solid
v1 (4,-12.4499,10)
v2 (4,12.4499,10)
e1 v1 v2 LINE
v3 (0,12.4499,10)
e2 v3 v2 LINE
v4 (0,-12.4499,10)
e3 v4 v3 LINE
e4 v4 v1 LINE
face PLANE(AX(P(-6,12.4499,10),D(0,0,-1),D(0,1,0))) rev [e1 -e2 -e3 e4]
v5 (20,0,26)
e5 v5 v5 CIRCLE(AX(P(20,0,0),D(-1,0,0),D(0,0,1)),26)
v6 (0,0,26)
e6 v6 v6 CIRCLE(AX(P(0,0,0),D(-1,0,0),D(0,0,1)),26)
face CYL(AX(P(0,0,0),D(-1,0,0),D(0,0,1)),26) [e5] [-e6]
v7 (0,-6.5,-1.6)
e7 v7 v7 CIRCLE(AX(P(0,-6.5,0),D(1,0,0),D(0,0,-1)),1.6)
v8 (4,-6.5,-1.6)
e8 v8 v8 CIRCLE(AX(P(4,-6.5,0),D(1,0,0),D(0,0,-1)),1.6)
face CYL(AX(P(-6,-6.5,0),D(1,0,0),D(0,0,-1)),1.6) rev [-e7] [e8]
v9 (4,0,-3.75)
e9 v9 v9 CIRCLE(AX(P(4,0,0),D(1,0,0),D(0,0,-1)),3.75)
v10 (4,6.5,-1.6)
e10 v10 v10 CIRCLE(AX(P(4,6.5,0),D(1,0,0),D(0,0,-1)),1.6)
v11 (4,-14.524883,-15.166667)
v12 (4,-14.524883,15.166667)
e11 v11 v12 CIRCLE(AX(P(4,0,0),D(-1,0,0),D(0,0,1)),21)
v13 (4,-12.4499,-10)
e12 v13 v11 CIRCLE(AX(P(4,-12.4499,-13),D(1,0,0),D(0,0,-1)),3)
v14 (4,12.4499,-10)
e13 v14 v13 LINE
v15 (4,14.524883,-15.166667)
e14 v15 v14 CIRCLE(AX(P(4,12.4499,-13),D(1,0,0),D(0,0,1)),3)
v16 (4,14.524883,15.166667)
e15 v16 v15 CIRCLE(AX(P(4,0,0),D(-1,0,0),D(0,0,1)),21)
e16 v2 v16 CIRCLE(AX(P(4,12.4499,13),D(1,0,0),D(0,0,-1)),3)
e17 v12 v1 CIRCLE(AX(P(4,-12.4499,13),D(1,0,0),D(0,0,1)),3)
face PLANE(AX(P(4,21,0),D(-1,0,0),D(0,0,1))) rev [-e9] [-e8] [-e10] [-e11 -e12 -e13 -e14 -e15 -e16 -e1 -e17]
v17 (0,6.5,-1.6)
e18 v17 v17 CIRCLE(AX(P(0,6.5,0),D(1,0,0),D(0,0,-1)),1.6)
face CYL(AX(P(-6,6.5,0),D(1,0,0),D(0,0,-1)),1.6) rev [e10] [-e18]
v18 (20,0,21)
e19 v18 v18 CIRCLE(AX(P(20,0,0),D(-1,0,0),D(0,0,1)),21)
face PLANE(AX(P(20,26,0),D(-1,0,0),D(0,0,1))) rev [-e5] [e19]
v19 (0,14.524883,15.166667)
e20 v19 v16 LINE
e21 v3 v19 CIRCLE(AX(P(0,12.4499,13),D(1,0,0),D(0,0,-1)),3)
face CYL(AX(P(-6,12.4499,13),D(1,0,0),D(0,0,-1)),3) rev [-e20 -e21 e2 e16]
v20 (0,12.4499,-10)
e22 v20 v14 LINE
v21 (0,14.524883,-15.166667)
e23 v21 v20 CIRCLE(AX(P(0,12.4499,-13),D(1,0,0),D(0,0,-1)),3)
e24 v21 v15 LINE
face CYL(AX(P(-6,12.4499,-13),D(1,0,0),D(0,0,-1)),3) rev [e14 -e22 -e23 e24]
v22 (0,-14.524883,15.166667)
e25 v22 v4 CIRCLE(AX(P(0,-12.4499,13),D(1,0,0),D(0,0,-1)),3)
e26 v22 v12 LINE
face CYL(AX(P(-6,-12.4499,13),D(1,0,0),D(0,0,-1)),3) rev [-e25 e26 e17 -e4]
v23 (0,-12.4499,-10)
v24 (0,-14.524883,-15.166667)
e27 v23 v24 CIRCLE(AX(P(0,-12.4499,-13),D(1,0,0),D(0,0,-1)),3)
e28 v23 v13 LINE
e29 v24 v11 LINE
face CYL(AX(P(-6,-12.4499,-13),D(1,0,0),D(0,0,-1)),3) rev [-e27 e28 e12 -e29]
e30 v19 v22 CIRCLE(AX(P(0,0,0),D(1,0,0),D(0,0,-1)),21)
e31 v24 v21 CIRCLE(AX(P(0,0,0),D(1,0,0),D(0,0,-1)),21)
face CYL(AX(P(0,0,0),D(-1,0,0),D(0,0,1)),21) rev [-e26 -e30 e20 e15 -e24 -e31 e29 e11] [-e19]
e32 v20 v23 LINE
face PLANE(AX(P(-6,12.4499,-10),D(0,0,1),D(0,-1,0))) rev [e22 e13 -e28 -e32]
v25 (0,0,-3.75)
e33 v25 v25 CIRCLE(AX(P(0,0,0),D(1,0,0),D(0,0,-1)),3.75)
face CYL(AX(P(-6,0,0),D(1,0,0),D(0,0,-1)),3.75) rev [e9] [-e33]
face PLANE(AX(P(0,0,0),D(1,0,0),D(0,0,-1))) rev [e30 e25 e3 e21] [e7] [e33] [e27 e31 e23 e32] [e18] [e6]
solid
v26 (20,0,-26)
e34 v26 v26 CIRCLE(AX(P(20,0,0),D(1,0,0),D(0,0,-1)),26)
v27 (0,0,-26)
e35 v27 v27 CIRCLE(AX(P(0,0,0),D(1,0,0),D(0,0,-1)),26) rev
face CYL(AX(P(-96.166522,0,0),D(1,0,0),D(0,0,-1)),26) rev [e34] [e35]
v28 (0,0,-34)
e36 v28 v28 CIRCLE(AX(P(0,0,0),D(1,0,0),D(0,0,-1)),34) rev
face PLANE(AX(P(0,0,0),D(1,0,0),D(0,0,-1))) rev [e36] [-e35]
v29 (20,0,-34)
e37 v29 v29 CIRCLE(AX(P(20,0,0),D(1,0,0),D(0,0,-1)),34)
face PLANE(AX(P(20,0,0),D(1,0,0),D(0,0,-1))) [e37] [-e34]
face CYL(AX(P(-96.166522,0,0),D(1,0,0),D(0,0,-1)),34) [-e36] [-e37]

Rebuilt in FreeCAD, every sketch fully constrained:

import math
import FreeCAD as App
import Part
import Sketcher

V = App.Vector
Q = App.Units.Quantity

doc = App.newDocument("Part")
params = doc.addObject("Spreadsheet::Sheet", "Params")
for row, (alias, value) in enumerate([
    ("sketch1_width", "4 mm"),
    ("sketch1_width2", "16 mm"),
    ("sketch1_height", "26 mm"),
    ("sketch1_height2", "21 mm"),
    ("revolution_angle", "360 deg"),
    ("sketch2_radius", "3 mm"),
    ("sketch2_radius2", "21 mm"),
    ("sketch2_diameter", "7.5 mm"),
    ("sketch2_diameter2", "3.2 mm"),
    ("pocket1_length", "10 mm"),
    ("sketch3_diameter", "68 mm"),
    ("sketch3_diameter2", "52 mm"),
    ("pad1_length", "20 mm"),
], start=1):
    params.set(f"A{row}", alias)
    params.set(f"B{row}", "=" + value)
    params.setAlias(f"B{row}", alias)

body = doc.addObject("PartDesign::Body", "Body")

sketch1 = doc.addObject("Sketcher::SketchObject", "Sketch")
body.addObject(sketch1)
sketch1.AttachmentSupport = (doc.XY_Plane, [""])
sketch1.MapMode = "FlatFace"
sketch1.addGeometry(Part.LineSegment(V(0, 26, 0), V(0, 0, 0)), False)
sketch1.addGeometry(Part.LineSegment(V(0, 0, 0), V(4, 0, 0)), False)
sketch1.addGeometry(Part.LineSegment(V(4, 0, 0), V(4, 21, 0)), False)
sketch1.addGeometry(Part.LineSegment(V(4, 21, 0), V(20, 21, 0)), False)
sketch1.addGeometry(Part.LineSegment(V(20, 21, 0), V(20, 26, 0)), False)
sketch1.addGeometry(Part.LineSegment(V(20, 26, 0), V(0, 26, 0)), False)
sketch1.addConstraint(Sketcher.Constraint("Coincident", 0, 2, 1, 1))
sketch1.addConstraint(Sketcher.Constraint("Coincident", 1, 2, 2, 1))
sketch1.addConstraint(Sketcher.Constraint("Coincident", 2, 2, 3, 1))
sketch1.addConstraint(Sketcher.Constraint("Coincident", 3, 2, 4, 1))
sketch1.addConstraint(Sketcher.Constraint("Coincident", 4, 2, 5, 1))
sketch1.addConstraint(Sketcher.Constraint("Coincident", 5, 2, 0, 1))
sketch1.addConstraint(Sketcher.Constraint("Vertical", 0))
sketch1.addConstraint(Sketcher.Constraint("Horizontal", 1))
sketch1.addConstraint(Sketcher.Constraint("Vertical", 2))
sketch1.addConstraint(Sketcher.Constraint("Horizontal", 3))
sketch1.addConstraint(Sketcher.Constraint("Vertical", 4))
sketch1.addConstraint(Sketcher.Constraint("Horizontal", 5))
sketch1.addConstraint(Sketcher.Constraint("Coincident", 0, 2, -1, 1))
sketch1.addConstraint(Sketcher.Constraint("DistanceX", 1, 1, 1, 2, Q("4 mm")))
sketch1.addConstraint(Sketcher.Constraint("DistanceX", 3, 1, 3, 2, Q("16 mm")))
sketch1.addConstraint(Sketcher.Constraint("DistanceY", 0, 2, 0, 1, Q("26 mm")))
sketch1.addConstraint(Sketcher.Constraint("DistanceY", 2, 1, 2, 2, Q("21 mm")))
sketch1.setExpression("Constraints[13]", "Params.sketch1_width")
sketch1.setExpression("Constraints[14]", "Params.sketch1_width2")
sketch1.setExpression("Constraints[15]", "Params.sketch1_height")
sketch1.setExpression("Constraints[16]", "Params.sketch1_height2")
revolution = doc.addObject("PartDesign::Revolution", "Revolution")
body.addObject(revolution)
revolution.Profile = sketch1
revolution.ReferenceAxis = (sketch1, ["H_Axis"])
revolution.setExpression("Angle", "Params.revolution_angle")

sketch2 = doc.addObject("Sketcher::SketchObject", "Sketch001")
body.addObject(sketch2)
sketch2.AttachmentSupport = (doc.YZ_Plane, [""])
sketch2.MapMode = "FlatFace"
sketch2.AttachmentOffset = App.Placement(V(0, 0, 4), App.Rotation())
sketch2.addGeometry(Part.Circle(V(0, 0, 0), V(0, 0, 1), 3.8), False)
sketch2.addGeometry(Part.Circle(V(6.5, 0, 0), V(0, 0, 1), 1.6), False)
sketch2.addGeometry(Part.Circle(V(-6.5, 0, 0), V(0, 0, 1), 1.6), False)
sketch2.addGeometry(Part.LineSegment(V(-12.4, 10, 0), V(12.4, 10, 0)), False)
sketch2.addGeometry(Part.ArcOfCircle(Part.Circle(V(12.4, 13, 0), V(0, 0, 1), 3), math.radians(-90), math.radians(46)), False)
sketch2.addGeometry(Part.ArcOfCircle(Part.Circle(V(0, 0, 0), V(0, 0, 1), 21), math.radians(46), math.radians(134)), False)
sketch2.addGeometry(Part.ArcOfCircle(Part.Circle(V(-12.4, 13, 0), V(0, 0, 1), 3), math.radians(134), math.radians(270)), False)
sketch2.addGeometry(Part.LineSegment(V(12.4, -10, 0), V(-12.4, -10, 0)), False)
sketch2.addGeometry(Part.ArcOfCircle(Part.Circle(V(-12.4, -13, 0), V(0, 0, 1), 3), math.radians(90), math.radians(226)), False)
sketch2.addGeometry(Part.ArcOfCircle(Part.Circle(V(0, 0, 0), V(0, 0, 1), 21), math.radians(-134), math.radians(-46)), False)
sketch2.addGeometry(Part.ArcOfCircle(Part.Circle(V(12.4, -13, 0), V(0, 0, 1), 3), math.radians(-46), math.radians(90)), False)
sketch2.addConstraint(Sketcher.Constraint("Tangent", 3, 2, 4, 1))
sketch2.addConstraint(Sketcher.Constraint("Tangent", 4, 2, 5, 1))
sketch2.addConstraint(Sketcher.Constraint("Tangent", 5, 2, 6, 1))
sketch2.addConstraint(Sketcher.Constraint("Tangent", 6, 2, 3, 1))
sketch2.addConstraint(Sketcher.Constraint("Tangent", 7, 2, 8, 1))
sketch2.addConstraint(Sketcher.Constraint("Tangent", 8, 2, 9, 1))
sketch2.addConstraint(Sketcher.Constraint("Tangent", 9, 2, 10, 1))
sketch2.addConstraint(Sketcher.Constraint("Tangent", 10, 2, 7, 1))
sketch2.addConstraint(Sketcher.Constraint("Horizontal", 3))
sketch2.addConstraint(Sketcher.Constraint("Horizontal", 7))
sketch2.addConstraint(Sketcher.Constraint("Coincident", 0, 3, -1, 1))
sketch2.addConstraint(Sketcher.Constraint("Coincident", 5, 3, -1, 1))
sketch2.addConstraint(Sketcher.Constraint("Coincident", 9, 3, -1, 1))
sketch2.addConstraint(Sketcher.Constraint("Equal", 1, 2))
sketch2.addConstraint(Sketcher.Constraint("Equal", 4, 6))
sketch2.addConstraint(Sketcher.Constraint("Equal", 6, 8))
sketch2.addConstraint(Sketcher.Constraint("Equal", 5, 9))
sketch2.addConstraint(Sketcher.Constraint("Equal", 8, 10))
sketch2.addConstraint(Sketcher.Constraint("Symmetric", 1, 3, 2, 3, -1, 1))
sketch2.addConstraint(Sketcher.Constraint("PointOnObject", 1, 3, -1))
sketch2.addConstraint(Sketcher.Constraint("Vertical", 6, 3, 8, 3))
sketch2.addConstraint(Sketcher.Constraint("Radius", 4, Q("3 mm")))
sketch2.addConstraint(Sketcher.Constraint("Radius", 5, Q("21 mm")))
sketch2.addConstraint(Sketcher.Constraint("Diameter", 0, Q("7.5 mm")))
sketch2.addConstraint(Sketcher.Constraint("Diameter", 1, Q("3.2 mm")))
sketch2.addConstraint(Sketcher.Constraint("DistanceY", -1, 1, 4, 3, Q("13 mm")))
sketch2.addConstraint(Sketcher.Constraint("DistanceX", 2, 3, 1, 3, Q("13 mm")))
sketch2.setExpression("Constraints[21]", "Params.sketch2_radius")
sketch2.setExpression("Constraints[22]", "Params.sketch2_radius2")
sketch2.setExpression("Constraints[23]", "Params.sketch2_diameter")
sketch2.setExpression("Constraints[24]", "Params.sketch2_diameter2")
pocket1 = doc.addObject("PartDesign::Pocket", "Pocket")
body.addObject(pocket1)
pocket1.Profile = sketch2
pocket1.setExpression("Length", "Params.pocket1_length")
body2 = doc.addObject("PartDesign::Body", "Body001")

sketch3 = doc.addObject("Sketcher::SketchObject", "Sketch002")
body2.addObject(sketch3)
sketch3.AttachmentSupport = (doc.getObject("YZ_Plane001"), [""])
sketch3.MapMode = "FlatFace"
sketch3.AttachmentOffset = App.Placement(V(0, 0, 20), App.Rotation())
sketch3.addGeometry(Part.Circle(V(0, 0, 0), V(0, 0, 1), 34), False)
sketch3.addGeometry(Part.Circle(V(0, 0, 0), V(0, 0, 1), 26), False)
sketch3.addConstraint(Sketcher.Constraint("Coincident", 0, 3, -1, 1))
sketch3.addConstraint(Sketcher.Constraint("Coincident", 1, 3, -1, 1))
sketch3.addConstraint(Sketcher.Constraint("Diameter", 0, Q("68 mm")))
sketch3.addConstraint(Sketcher.Constraint("Diameter", 1, Q("52 mm")))
sketch3.setExpression("Constraints[2]", "Params.sketch3_diameter")
sketch3.setExpression("Constraints[3]", "Params.sketch3_diameter2")
pad1 = doc.addObject("PartDesign::Pad", "Pad")
body2.addObject(pad1)
pad1.Profile = sketch3
pad1.setExpression("Length", "Params.pad1_length")
pad1.Reversed = True

doc.recompute()
